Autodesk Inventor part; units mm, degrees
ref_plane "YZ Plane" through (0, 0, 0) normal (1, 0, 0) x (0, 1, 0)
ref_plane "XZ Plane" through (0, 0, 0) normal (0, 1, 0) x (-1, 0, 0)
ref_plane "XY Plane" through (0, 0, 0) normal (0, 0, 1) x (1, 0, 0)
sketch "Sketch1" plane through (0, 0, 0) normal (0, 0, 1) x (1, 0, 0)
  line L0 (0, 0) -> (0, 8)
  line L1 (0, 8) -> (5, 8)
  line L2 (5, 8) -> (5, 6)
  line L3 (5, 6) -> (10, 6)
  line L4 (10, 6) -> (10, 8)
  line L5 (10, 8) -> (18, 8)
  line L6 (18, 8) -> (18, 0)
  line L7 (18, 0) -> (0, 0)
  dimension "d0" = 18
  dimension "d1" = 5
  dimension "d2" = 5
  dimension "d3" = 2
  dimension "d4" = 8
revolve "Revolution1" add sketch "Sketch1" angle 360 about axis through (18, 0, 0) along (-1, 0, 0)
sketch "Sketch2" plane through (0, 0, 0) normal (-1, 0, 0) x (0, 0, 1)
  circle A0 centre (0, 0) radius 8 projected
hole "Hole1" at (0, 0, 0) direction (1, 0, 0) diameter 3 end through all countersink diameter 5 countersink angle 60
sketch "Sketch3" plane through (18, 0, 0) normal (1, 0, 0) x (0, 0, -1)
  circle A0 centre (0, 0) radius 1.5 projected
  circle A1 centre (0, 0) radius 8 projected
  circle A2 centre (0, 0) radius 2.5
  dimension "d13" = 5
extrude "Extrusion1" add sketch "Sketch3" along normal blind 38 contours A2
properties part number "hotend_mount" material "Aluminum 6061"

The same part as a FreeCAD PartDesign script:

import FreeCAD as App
import Part
import Sketcher
from FreeCAD import Vector
Q = App.Units.Quantity

doc = App.newDocument("Part")
body = doc.addObject("PartDesign::Body", "Body")

# Sketch on XY plane
sketch1 = body.newObject("Sketcher::SketchObject", "Sketch")
sketch1.AttachmentSupport = (doc.getObject("XY_Plane"), [""])
sketch1.MapMode = "FlatFace"
sketch1.addGeometry(Part.LineSegment(Vector(0, 8, 0), Vector(0, 0, 0)), False)
sketch1.addGeometry(Part.LineSegment(Vector(0, 0, 0), Vector(18, 0, 0)), False)
sketch1.addGeometry(Part.LineSegment(Vector(18, 0, 0), Vector(18, 8, 0)), False)
sketch1.addGeometry(Part.LineSegment(Vector(18, 8, 0), Vector(10, 8, 0)), False)
sketch1.addGeometry(Part.LineSegment(Vector(10, 8, 0), Vector(10, 6, 0)), False)
sketch1.addGeometry(Part.LineSegment(Vector(10, 6, 0), Vector(5, 6, 0)), False)
sketch1.addGeometry(Part.LineSegment(Vector(5, 6, 0), Vector(5, 8, 0)), False)
sketch1.addGeometry(Part.LineSegment(Vector(5, 8, 0), Vector(0, 8, 0)), False)
sketch1.addConstraint(Sketcher.Constraint("Coincident", 0, 2, 1, 1))
sketch1.addConstraint(Sketcher.Constraint("Coincident", 1, 2, 2, 1))
sketch1.addConstraint(Sketcher.Constraint("Coincident", 2, 2, 3, 1))
sketch1.addConstraint(Sketcher.Constraint("Coincident", 3, 2, 4, 1))
sketch1.addConstraint(Sketcher.Constraint("Coincident", 4, 2, 5, 1))
sketch1.addConstraint(Sketcher.Constraint("Coincident", 5, 2, 6, 1))
sketch1.addConstraint(Sketcher.Constraint("Coincident", 6, 2, 7, 1))
sketch1.addConstraint(Sketcher.Constraint("Coincident", 7, 2, 0, 1))
sketch1.addConstraint(Sketcher.Constraint("Vertical", 0))
sketch1.addConstraint(Sketcher.Constraint("Horizontal", 1))
sketch1.addConstraint(Sketcher.Constraint("Vertical", 2))
sketch1.addConstraint(Sketcher.Constraint("Horizontal", 3))
sketch1.addConstraint(Sketcher.Constraint("Vertical", 4))
sketch1.addConstraint(Sketcher.Constraint("Horizontal", 5))
sketch1.addConstraint(Sketcher.Constraint("Vertical", 6))
sketch1.addConstraint(Sketcher.Constraint("Horizontal", 7))
sketch1.addConstraint(Sketcher.Constraint("Coincident", 0, 2, -1, 1))
sketch1.addConstraint(Sketcher.Constraint("Horizontal", 3, 2, 6, 2))
sketch1.addConstraint(Sketcher.Constraint("Equal", 5, 7))
sketch1.addConstraint(Sketcher.Constraint("Equal", 3, 0))
sketch1.addConstraint(Sketcher.Constraint("DistanceX", 1, 1, 1, 2, Q("18 mm")))
sketch1.addConstraint(Sketcher.Constraint("DistanceX", 3, 2, 3, 1, Q("8 mm")))
sketch1.addConstraint(Sketcher.Constraint("DistanceY", 4, 2, 4, 1, Q("2 mm")))
revolution = body.newObject("PartDesign::Revolution", "Revolution")
revolution.Profile = sketch1
revolution.ReferenceAxis = (sketch1, ["H_Axis"])
revolution.Angle = 360

# Sketch on YZ plane
sketch2 = body.newObject("Sketcher::SketchObject", "Sketch001")
sketch2.AttachmentSupport = (doc.getObject("YZ_Plane"), [""])
sketch2.MapMode = "FlatFace"
sketch2.addGeometry(Part.Circle(Vector(0, 0, 0), Vector(0, 0, 1), 1.5), False)
sketch2.addConstraint(Sketcher.Constraint("Coincident", 0, 3, -1, 1))
sketch2.addConstraint(Sketcher.Constraint("Diameter", 0, Q("3 mm")))
doc.recompute()
hole = body.newObject("PartDesign::Hole", "Hole")
hole.Profile = sketch2
hole.ThreadType = "None"
hole.Diameter = 3
hole.DepthType = "ThroughAll"
hole.HoleCutType = "Countersink"
hole.HoleCutDiameter = 5
hole.HoleCutCountersinkAngle = 60
hole.Reversed = True

# Sketch on YZ plane
sketch3 = body.newObject("Sketcher::SketchObject", "Sketch002")
sketch3.AttachmentSupport = (doc.getObject("YZ_Plane"), [""])
sketch3.MapMode = "FlatFace"
sketch3.AttachmentOffset = App.Placement(Vector(0, 0, 18), App.Rotation())
sketch3.addGeometry(Part.Circle(Vector(0, 0, 0), Vector(0, 0, 1), 2.5), False)
sketch3.addGeometry(Part.Circle(Vector(0, 0, 0), Vector(0, 0, 1), 1.5), False)
sketch3.addConstraint(Sketcher.Constraint("Coincident", 0, 3, -1, 1))
sketch3.addConstraint(Sketcher.Constraint("Coincident", 1, 3, -1, 1))
sketch3.addConstraint(Sketcher.Constraint("Diameter", 0, Q("5 mm")))
sketch3.addConstraint(Sketcher.Constraint("Diameter", 1, Q("3 mm")))
pad1 = body.newObject("PartDesign::Pad", "Pad")
pad1.Profile = sketch3
pad1.Length = 38

doc.recompute()
